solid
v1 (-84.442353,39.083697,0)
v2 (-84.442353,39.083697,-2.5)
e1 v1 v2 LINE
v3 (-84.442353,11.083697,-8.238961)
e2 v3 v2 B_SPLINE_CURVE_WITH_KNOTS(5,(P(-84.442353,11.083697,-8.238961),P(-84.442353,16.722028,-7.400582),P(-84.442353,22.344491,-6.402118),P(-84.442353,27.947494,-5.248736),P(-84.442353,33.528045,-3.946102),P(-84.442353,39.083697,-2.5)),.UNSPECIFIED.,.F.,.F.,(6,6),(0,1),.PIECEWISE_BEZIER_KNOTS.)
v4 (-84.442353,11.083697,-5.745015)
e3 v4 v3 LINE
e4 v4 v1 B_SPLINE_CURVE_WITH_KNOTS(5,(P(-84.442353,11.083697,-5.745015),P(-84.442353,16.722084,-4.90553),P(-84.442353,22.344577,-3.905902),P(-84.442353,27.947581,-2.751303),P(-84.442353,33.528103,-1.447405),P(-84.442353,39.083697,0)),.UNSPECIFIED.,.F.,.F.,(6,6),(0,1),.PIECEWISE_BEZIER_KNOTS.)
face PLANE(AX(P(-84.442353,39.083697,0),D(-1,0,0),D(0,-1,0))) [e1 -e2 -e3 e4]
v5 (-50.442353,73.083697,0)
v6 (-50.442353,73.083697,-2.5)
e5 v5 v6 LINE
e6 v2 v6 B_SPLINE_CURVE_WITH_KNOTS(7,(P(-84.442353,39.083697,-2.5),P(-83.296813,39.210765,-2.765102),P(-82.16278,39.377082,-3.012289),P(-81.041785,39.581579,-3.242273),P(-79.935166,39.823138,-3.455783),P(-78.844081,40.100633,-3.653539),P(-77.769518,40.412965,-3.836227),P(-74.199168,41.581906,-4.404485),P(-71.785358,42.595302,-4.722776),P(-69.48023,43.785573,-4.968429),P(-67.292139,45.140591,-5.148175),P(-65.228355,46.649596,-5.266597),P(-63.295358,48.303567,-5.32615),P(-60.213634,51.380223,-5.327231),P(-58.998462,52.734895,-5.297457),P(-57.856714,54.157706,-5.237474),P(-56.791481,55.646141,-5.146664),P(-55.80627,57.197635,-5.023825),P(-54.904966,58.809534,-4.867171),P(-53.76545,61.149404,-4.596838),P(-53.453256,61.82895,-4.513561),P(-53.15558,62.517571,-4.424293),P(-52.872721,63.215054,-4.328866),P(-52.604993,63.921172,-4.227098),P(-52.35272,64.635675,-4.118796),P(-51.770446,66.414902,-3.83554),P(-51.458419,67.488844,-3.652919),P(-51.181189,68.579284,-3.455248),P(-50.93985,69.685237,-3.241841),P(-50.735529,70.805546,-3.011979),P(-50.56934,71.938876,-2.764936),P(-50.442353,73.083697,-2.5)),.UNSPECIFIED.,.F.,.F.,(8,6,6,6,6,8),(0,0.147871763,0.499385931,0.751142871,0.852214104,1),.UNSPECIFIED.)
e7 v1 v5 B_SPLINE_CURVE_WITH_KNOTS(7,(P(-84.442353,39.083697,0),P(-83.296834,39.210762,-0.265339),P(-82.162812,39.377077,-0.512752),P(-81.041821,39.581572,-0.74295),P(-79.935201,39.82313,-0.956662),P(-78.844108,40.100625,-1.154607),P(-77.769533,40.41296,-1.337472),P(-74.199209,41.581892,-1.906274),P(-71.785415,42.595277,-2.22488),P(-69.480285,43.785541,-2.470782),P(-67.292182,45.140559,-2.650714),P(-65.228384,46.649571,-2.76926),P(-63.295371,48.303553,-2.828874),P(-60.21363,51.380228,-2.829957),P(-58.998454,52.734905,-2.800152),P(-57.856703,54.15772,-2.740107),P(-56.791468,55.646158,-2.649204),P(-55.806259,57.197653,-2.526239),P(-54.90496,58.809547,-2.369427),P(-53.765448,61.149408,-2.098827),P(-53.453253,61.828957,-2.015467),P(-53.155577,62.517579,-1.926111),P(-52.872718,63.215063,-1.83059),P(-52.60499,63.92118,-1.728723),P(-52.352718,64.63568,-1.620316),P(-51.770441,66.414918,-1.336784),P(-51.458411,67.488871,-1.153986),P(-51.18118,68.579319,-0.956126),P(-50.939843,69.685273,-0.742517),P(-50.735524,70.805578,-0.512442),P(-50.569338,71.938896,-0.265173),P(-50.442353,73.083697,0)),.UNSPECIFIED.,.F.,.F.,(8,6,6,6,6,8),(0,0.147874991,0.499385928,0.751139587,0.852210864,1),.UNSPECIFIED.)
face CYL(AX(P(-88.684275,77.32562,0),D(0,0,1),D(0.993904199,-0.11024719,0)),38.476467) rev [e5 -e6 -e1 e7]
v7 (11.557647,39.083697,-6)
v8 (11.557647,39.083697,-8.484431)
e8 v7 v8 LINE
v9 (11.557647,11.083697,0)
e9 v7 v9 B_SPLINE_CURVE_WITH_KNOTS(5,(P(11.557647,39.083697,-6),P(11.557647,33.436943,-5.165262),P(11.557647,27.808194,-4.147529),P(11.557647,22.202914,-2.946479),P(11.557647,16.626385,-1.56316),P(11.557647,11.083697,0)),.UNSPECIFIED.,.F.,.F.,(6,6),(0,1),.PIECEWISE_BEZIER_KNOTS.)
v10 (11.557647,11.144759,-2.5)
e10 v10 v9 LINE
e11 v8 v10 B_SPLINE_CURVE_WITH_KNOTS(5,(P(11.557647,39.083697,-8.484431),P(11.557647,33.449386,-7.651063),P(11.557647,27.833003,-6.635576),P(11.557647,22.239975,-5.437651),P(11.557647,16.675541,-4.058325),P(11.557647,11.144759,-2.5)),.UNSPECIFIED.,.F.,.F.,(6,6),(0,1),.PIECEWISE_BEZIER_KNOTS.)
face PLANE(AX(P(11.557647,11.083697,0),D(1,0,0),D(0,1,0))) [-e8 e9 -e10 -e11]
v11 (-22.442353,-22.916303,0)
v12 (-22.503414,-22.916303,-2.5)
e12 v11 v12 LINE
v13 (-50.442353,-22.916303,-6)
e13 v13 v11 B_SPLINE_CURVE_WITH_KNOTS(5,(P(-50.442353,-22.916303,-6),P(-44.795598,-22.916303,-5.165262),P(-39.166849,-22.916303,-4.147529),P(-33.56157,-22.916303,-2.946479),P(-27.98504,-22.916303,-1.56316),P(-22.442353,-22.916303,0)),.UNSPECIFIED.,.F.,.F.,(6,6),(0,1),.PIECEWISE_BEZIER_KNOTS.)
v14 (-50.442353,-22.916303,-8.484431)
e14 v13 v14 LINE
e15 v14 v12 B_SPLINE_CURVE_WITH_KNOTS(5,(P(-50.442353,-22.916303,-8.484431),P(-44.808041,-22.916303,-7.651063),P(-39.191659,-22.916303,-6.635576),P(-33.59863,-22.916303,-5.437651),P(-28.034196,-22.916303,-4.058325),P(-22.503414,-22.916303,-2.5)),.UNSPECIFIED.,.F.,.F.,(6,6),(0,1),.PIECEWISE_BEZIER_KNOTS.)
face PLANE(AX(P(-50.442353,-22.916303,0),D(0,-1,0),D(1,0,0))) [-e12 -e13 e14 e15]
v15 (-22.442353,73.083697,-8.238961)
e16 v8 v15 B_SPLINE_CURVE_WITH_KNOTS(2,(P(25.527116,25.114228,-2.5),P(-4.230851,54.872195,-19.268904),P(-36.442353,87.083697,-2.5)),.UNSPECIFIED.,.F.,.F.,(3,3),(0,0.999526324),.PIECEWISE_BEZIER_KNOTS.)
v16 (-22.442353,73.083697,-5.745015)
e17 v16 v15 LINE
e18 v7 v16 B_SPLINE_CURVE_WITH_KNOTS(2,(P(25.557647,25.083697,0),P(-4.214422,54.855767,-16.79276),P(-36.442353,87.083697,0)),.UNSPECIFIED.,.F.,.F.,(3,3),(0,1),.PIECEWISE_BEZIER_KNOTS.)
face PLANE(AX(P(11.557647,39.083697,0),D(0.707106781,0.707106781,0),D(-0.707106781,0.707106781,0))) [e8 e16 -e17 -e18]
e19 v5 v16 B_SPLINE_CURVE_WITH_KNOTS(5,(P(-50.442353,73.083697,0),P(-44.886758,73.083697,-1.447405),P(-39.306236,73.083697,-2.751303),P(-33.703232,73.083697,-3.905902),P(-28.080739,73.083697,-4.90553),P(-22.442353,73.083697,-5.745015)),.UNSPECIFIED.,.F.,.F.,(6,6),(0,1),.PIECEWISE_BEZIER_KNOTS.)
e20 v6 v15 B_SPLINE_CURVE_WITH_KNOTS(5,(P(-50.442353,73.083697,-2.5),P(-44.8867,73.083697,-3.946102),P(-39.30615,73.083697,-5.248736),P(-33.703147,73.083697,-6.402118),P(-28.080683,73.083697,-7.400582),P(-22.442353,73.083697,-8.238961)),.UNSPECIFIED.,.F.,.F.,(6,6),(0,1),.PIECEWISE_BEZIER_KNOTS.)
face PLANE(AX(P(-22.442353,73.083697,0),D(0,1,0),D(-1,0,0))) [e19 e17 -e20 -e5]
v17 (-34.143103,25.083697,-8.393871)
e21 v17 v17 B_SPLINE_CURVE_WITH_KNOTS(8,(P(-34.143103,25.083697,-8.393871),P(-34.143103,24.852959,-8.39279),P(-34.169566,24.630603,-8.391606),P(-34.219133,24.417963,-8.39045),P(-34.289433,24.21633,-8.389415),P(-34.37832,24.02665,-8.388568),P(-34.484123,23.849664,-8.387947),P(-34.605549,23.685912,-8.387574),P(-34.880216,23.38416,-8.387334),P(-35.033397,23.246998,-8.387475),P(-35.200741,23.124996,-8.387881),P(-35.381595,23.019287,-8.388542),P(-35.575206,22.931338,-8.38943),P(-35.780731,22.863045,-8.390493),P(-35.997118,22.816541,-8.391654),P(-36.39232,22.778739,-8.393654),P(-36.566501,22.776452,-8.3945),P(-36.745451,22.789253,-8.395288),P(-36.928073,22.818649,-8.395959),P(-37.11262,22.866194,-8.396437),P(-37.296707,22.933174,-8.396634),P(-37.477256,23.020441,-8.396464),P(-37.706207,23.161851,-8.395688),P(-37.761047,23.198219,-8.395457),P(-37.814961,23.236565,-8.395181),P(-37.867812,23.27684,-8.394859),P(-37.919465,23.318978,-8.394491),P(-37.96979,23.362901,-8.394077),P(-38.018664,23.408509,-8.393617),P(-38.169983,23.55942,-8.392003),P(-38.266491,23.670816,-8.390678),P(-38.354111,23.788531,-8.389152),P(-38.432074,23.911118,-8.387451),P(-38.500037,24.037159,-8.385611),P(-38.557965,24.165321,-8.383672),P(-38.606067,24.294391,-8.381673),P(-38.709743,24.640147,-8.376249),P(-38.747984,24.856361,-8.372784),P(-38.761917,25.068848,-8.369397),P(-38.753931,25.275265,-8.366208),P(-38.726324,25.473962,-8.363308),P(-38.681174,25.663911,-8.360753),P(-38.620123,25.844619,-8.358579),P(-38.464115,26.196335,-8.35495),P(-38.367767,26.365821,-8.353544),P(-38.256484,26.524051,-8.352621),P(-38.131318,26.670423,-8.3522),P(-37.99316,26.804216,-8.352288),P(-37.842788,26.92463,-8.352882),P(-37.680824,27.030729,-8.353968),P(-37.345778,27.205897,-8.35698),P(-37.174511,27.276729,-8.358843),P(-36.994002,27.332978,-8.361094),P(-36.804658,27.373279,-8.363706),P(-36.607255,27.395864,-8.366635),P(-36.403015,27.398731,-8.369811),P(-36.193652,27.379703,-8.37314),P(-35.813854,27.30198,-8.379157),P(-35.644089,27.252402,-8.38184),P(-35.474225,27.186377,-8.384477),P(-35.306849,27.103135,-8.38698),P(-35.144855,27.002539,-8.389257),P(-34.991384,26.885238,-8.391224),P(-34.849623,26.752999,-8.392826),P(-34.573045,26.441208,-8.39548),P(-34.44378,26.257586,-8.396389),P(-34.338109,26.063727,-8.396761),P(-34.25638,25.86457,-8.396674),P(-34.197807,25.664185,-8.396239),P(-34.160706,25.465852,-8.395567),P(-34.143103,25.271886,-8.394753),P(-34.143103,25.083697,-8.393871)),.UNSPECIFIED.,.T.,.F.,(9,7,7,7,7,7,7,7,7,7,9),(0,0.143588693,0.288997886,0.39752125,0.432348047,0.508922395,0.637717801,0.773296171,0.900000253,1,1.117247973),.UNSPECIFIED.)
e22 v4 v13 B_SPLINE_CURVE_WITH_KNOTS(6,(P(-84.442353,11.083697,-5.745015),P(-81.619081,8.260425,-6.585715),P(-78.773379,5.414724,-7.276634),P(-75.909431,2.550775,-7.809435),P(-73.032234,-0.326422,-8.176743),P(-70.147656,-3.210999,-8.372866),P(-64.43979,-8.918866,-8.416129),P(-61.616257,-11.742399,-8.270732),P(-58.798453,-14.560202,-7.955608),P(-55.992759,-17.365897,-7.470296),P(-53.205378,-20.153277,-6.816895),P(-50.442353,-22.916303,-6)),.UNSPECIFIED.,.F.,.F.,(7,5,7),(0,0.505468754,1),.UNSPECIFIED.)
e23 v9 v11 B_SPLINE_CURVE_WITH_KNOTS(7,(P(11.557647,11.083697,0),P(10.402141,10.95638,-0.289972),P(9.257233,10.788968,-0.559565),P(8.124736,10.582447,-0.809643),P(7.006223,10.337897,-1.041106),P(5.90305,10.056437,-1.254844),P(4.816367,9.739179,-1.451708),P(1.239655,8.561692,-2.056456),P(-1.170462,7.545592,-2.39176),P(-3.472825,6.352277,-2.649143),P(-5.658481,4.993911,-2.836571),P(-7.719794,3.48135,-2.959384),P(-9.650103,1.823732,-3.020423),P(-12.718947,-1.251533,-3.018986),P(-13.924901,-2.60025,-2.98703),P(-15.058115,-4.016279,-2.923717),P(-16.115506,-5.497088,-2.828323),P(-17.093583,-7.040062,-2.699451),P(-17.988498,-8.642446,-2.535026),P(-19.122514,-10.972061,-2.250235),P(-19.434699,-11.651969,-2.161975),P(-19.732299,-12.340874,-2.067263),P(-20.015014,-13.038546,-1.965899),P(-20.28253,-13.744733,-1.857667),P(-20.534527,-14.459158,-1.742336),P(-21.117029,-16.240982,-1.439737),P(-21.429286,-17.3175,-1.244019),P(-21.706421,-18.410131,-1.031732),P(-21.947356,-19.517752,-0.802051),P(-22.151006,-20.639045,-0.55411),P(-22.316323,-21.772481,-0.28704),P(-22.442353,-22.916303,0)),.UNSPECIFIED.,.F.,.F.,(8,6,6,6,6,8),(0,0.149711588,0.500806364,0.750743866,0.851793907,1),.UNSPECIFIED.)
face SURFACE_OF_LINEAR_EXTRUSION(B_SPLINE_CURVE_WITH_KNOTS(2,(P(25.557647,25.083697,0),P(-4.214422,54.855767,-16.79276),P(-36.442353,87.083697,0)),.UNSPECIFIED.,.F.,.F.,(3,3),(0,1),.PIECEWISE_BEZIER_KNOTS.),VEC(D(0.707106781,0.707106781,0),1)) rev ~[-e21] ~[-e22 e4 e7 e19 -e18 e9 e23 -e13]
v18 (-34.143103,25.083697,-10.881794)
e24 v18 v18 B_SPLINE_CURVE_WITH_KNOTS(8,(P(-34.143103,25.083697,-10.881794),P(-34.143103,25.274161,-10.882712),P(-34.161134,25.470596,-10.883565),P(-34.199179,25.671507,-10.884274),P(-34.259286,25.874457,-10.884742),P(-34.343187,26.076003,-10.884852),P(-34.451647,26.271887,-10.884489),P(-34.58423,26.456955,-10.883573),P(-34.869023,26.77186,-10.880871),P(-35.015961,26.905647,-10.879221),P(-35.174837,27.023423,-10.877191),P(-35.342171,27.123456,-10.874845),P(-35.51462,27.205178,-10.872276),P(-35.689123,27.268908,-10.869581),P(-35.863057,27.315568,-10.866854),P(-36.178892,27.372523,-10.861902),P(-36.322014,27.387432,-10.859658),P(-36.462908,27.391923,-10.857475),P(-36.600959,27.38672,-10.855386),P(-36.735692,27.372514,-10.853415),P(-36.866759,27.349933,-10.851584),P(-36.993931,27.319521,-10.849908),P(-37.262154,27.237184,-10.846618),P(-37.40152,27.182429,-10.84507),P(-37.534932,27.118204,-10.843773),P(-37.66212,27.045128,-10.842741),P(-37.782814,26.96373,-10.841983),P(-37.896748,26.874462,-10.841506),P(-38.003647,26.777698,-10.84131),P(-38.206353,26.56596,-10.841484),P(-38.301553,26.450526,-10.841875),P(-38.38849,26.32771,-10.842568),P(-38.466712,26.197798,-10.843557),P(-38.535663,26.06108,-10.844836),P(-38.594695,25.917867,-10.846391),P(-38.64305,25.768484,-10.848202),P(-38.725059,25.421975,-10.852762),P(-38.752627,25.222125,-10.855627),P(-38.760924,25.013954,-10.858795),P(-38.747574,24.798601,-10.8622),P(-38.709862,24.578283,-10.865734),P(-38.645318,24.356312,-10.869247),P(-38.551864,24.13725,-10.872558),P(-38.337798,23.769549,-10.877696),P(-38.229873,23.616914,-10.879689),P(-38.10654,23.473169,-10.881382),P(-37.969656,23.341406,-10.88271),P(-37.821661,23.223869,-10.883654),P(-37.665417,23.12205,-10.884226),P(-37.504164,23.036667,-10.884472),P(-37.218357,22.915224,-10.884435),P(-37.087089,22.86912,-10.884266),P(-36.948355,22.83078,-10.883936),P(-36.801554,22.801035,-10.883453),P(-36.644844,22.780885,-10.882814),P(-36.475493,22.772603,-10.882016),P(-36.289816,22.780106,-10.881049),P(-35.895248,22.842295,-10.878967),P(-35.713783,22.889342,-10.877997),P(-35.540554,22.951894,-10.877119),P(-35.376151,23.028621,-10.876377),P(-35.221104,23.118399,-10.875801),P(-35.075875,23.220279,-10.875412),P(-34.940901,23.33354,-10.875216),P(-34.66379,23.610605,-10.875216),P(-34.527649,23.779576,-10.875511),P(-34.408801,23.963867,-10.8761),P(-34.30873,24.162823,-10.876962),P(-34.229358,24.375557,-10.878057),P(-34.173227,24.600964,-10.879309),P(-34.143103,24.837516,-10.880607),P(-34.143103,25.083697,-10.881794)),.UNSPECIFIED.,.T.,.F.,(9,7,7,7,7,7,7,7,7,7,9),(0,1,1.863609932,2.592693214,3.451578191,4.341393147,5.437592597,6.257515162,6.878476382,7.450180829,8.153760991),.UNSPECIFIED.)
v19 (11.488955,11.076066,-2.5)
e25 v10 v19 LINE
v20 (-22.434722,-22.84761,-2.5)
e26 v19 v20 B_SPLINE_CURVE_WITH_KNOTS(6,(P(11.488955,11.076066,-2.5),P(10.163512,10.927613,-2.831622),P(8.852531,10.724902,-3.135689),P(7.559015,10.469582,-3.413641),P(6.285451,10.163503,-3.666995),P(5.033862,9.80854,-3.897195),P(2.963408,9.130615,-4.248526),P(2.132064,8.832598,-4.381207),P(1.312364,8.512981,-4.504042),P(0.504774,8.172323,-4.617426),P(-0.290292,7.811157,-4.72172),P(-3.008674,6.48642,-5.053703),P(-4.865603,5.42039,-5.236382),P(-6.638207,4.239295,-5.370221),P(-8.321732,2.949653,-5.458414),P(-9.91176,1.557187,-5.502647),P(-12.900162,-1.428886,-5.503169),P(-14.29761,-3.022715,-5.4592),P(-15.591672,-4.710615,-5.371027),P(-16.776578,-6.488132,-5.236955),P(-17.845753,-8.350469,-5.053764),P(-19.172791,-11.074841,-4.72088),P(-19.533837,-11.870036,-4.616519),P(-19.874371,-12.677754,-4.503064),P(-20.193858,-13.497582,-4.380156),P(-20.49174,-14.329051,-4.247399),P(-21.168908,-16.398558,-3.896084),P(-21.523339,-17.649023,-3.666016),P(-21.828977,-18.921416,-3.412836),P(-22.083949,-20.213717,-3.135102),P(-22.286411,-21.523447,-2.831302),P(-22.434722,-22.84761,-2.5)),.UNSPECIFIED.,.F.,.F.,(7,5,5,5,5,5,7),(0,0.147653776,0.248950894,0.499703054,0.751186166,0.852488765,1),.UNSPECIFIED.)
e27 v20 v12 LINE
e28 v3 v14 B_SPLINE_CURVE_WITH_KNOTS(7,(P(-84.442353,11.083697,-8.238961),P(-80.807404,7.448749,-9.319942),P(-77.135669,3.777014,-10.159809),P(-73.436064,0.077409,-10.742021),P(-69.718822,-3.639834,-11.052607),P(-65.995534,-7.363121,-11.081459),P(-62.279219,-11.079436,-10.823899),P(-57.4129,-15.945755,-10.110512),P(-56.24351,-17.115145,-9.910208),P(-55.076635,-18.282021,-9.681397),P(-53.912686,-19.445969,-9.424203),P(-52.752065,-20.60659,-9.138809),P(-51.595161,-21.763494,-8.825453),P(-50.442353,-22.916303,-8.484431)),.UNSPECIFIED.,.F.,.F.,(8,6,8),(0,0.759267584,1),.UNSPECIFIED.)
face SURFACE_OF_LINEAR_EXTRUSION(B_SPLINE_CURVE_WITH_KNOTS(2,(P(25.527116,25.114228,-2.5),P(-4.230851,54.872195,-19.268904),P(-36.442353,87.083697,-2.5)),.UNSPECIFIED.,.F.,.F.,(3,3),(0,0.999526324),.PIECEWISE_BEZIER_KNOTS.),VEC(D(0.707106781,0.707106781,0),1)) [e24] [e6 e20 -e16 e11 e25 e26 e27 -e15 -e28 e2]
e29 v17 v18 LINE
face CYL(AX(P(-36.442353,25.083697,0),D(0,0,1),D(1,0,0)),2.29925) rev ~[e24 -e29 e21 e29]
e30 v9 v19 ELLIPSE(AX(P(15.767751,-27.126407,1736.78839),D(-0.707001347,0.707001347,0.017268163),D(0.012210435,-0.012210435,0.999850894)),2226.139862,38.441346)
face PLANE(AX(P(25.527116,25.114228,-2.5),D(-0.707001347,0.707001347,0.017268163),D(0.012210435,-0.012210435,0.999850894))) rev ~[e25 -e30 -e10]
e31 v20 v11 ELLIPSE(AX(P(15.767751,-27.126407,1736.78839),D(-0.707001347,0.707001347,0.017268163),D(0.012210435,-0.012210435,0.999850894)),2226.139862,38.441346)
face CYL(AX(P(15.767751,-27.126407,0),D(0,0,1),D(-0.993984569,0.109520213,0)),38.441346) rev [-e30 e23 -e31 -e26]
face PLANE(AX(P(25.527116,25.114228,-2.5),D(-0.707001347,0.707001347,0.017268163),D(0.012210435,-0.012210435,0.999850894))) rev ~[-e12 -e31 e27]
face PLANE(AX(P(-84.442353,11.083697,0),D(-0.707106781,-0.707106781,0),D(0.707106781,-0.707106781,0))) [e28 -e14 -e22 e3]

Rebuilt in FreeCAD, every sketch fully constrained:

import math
import FreeCAD as App
import Part
import Sketcher
Q = App.Units.Quantity


def add_polygon(sketch, points):
    """Adds a closed chain of lines whose ends are joined by coincident constraints."""
    first, n = sketch.GeometryCount, len(points)
    for a, b in zip(points, points[1:] + points[:1]):
        sketch.addGeometry(Part.LineSegment(App.Vector(*a, 0), App.Vector(*b, 0)), False)
    for i in range(n):
        sketch.addConstraint(Sketcher.Constraint("Coincident", first + i, 2, first + (i + 1) % n, 1))

doc = App.newDocument("Part")
body = doc.addObject("PartDesign::Body", "Body")

# Sketch on XY plane
sketch1 = body.newObject("Sketcher::SketchObject", "Sketch")
sketch1.AttachmentSupport = (doc.getObject("XY_Plane"), [""])
sketch1.MapMode = "FlatFace"
sketch1.addGeometry([
    Part.LineSegment(App.Vector(-84.4, 11.1, 0), App.Vector(-50.4, -22.9, 0)),  # 0
    Part.LineSegment(App.Vector(-50.4, -22.9, 0), App.Vector(-22.4, -22.9, 0)),  # 1
    Part.ArcOfCircle(Part.Circle(App.Vector(15.8, -27.1, 0), App.Vector(0, 0, 1), 38.4), math.radians(96), math.radians(174)),  # 2
    Part.LineSegment(App.Vector(11.6, 11.1, 0), App.Vector(11.6, 39.1, 0)),  # 3
    Part.LineSegment(App.Vector(11.6, 39.1, 0), App.Vector(-22.4, 73.1, 0)),  # 4
    Part.LineSegment(App.Vector(-22.4, 73.1, 0), App.Vector(-50.4, 73.1, 0)),  # 5
    Part.ArcOfCircle(Part.Circle(App.Vector(-88.7, 77.3, 0), App.Vector(0, 0, 1), 38.5), math.radians(-84), math.radians(-6)),  # 6
    Part.LineSegment(App.Vector(-84.4, 39.1, 0), App.Vector(-84.4, 11.1, 0)),  # 7
    Part.Circle(App.Vector(-36.4, 25.1, 0), App.Vector(0, 0, 1), 2.3),  # 8
], False)
sketch1.addConstraint([
    Sketcher.Constraint("Coincident", 0, 2, 1, 1),
    Sketcher.Constraint("Coincident", 1, 2, 2, 2),
    Sketcher.Constraint("Coincident", 2, 1, 3, 1),
    Sketcher.Constraint("Coincident", 3, 2, 4, 1),
    Sketcher.Constraint("Coincident", 4, 2, 5, 1),
    Sketcher.Constraint("Coincident", 5, 2, 6, 2),
    Sketcher.Constraint("Coincident", 6, 1, 7, 1),
    Sketcher.Constraint("Coincident", 7, 2, 0, 1),
    Sketcher.Constraint("Horizontal", 1),
    Sketcher.Constraint("Vertical", 3),
    Sketcher.Constraint("Horizontal", 5),
    Sketcher.Constraint("Vertical", 7),
    Sketcher.Constraint("Parallel", 0, 4),
    Sketcher.Constraint("Horizontal", 3, 2, 6, 1),
    Sketcher.Constraint("Horizontal", 2, 1, 7, 2),
    Sketcher.Constraint("Vertical", 1, 2, 4, 2),
    Sketcher.Constraint("Vertical", 0, 2, 5, 2),
    Sketcher.Constraint("Equal", 5, 3),
    Sketcher.Constraint("Equal", 0, 4),
    Sketcher.Constraint("DistanceX", 1, 1, 1, 2, Q("28 mm")),
    Sketcher.Constraint("Angle", 0, Q("-45 deg")),
    Sketcher.Constraint("DistanceX", 0, 2, 8, 3, Q("14 mm")),
    Sketcher.Constraint("DistanceY", 0, 2, 8, 3, Q("48 mm")),
    Sketcher.Constraint("DistanceX", 1, 2, 2, 1, Q("34 mm")),
    Sketcher.Constraint("Diameter", 8, Q("4.598499 mm")),
    Sketcher.Constraint("Radius", 2, Q("38.441346 mm")),
    Sketcher.Constraint("Radius", 6, Q("38.476467 mm")),
    Sketcher.Constraint("DistanceX", -1, 1, 2, 3, Q("15.767751 mm")),
    Sketcher.Constraint("DistanceY", -1, 1, 6, 3, Q("77.32562 mm")),
])
pad1 = body.newObject("PartDesign::Pad", "Pad")
pad1.Profile = sketch1
pad1.Length = 12
pad1.Reversed = True

# Sketch on an angled plane
sketch2 = body.newObject("Sketcher::SketchObject", "Sketch001")
sketch2.Placement = App.Placement(App.Vector(25.320672, 25.320672, 0), App.Rotation(App.Vector(0, 0, -1), App.Vector(-0.707106781, 0.707106781, 0), App.Vector(0.707106781, 0.707106781, 0), "ZXY"))
add_polygon(sketch2, [(-14.629, 126.017), (-14.629, -39.006), (26.629, -39.006), (26.629, 126.017)])  # lines 0-3
sketch2.addGeometry(Part.BSplineCurve([App.Vector(0, -0.335133, 0), App.Vector(16.79276, 41.768931, 0), App.Vector(0, 87.346108, 0)], [3, 3], [0, 1], False, 2, [1, 1, 1], False), False)  # 4
sketch2.addGeometry(Part.LineSegment(App.Vector(0, 87.346108, 0), App.Vector(2.5, 87.346108, 0)), False)  # 5
sketch2.addGeometry(Part.BSplineCurve([App.Vector(2.5, -0.291956, 0), App.Vector(19.268904, 41.792164, 0), App.Vector(2.5, 87.346108, 0)], [3, 3], [0, 0.999526324], False, 2, [1, 1, 1], False), False)  # 6
sketch2.addGeometry(Part.LineSegment(App.Vector(2.5, -0.291956, 0), App.Vector(0, -0.335133, 0)), False)  # 7
sketch2.addConstraint([
    Sketcher.Constraint("Block", 4),
    Sketcher.Constraint("Block", 6),
    Sketcher.Constraint("Coincident", 4, 2, 5, 1),
    Sketcher.Constraint("Coincident", 5, 2, 6, 2),
    Sketcher.Constraint("Coincident", 6, 1, 7, 1),
    Sketcher.Constraint("Coincident", 7, 2, 4, 1),
    Sketcher.Constraint("Vertical", 0),
    Sketcher.Constraint("Horizontal", 1),
    Sketcher.Constraint("Vertical", 2),
    Sketcher.Constraint("Horizontal", 3),
    Sketcher.Constraint("DistanceX", 1, 1, 1, 2, Q("41.258 mm")),
    Sketcher.Constraint("DistanceY", 0, 2, 0, 1, Q("165.023 mm")),
    Sketcher.Constraint("DistanceX", 0, 2, -1, 1, Q("14.629 mm")),
    Sketcher.Constraint("DistanceY", 0, 2, -1, 1, Q("39.006 mm")),
])
pocket1 = body.newObject("PartDesign::Pocket", "Pocket")
pocket1.Profile = sketch2
pocket1.Type = "ThroughAll"

doc.recompute()
